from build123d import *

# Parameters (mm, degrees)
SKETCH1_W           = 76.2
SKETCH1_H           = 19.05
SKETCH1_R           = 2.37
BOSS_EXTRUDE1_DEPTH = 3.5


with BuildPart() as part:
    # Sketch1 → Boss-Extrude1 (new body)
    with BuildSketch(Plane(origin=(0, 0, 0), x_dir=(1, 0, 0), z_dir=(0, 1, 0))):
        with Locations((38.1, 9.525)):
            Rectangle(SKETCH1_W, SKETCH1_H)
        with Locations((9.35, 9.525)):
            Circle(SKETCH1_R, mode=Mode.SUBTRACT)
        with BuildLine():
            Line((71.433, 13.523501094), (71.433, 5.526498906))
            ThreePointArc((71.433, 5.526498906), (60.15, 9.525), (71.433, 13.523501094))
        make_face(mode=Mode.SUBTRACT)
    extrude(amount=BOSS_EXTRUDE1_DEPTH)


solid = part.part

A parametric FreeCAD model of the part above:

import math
import FreeCAD as App
import Part
import Sketcher

V = App.Vector
Q = App.Units.Quantity


def add_polygon(sketch, points):
    """Adds a closed chain of lines whose ends are joined by coincident constraints."""
    first, n = sketch.GeometryCount, len(points)
    for a, b in zip(points, points[1:] + points[:1]):
        sketch.addGeometry(Part.LineSegment(App.Vector(*a, 0), App.Vector(*b, 0)), False)
    for i in range(n):
        sketch.addConstraint(Sketcher.Constraint("Coincident", first + i, 2, first + (i + 1) % n, 1))

doc = App.newDocument("Part")
body = doc.addObject("PartDesign::Body", "Body")

sketch1 = body.newObject("Sketcher::SketchObject", "Sketch")
sketch1.AttachmentSupport = (doc.getObject("XZ_Plane"), [""])
sketch1.MapMode = "FlatFace"
add_polygon(sketch1, [(0, -19.1), (0, 0), (76.2, 0), (76.2, -19.1)])
sketch1.addGeometry(Part.Circle(V(9.3, -9.5, 0), V(0, 0, 1), 2.4), False)
sketch1.addGeometry(Part.ArcOfCircle(Part.Circle(V(66.5, -9.5, 0), V(0, 0, 1), 6.3), math.radians(39), math.radians(321)), False)
sketch1.addGeometry(Part.LineSegment(V(71.4, -13.5, 0), V(71.4, -5.5, 0)), False)
sketch1.addConstraint(Sketcher.Constraint("Coincident", 5, 1, 6, 2))
sketch1.addConstraint(Sketcher.Constraint("Coincident", 6, 1, 5, 2))
sketch1.addConstraint(Sketcher.Constraint("Vertical", 0))
sketch1.addConstraint(Sketcher.Constraint("Horizontal", 1))
sketch1.addConstraint(Sketcher.Constraint("Vertical", 2))
sketch1.addConstraint(Sketcher.Constraint("Horizontal", 3))
sketch1.addConstraint(Sketcher.Constraint("Vertical", 6))
sketch1.addConstraint(Sketcher.Constraint("Coincident", 0, 2, -1, 1))
sketch1.addConstraint(Sketcher.Constraint("Horizontal", 4, 3, 5, 3))
sketch1.addConstraint(Sketcher.Constraint("DistanceX", 1, 1, 1, 2, Q("3 in")))
sketch1.addConstraint(Sketcher.Constraint("Radius", 5, Q("0.25 in")))
sketch1.addConstraint(Sketcher.Constraint("DistanceY", 0, 1, 0, 2, Q("0.75 in")))
sketch1.addConstraint(Sketcher.Constraint("Diameter", 4, 4.74))
sketch1.addConstraint(Sketcher.Constraint("DistanceX", 4, 3, 5, 3, Q("2.25 in")))
sketch1.addConstraint(Sketcher.Constraint("DistanceY", 4, 3, -1, 1, Q("0.375 in")))
sketch1.addConstraint(Sketcher.Constraint("DistanceX", -1, 1, 4, 3, 9.35))
sketch1.addConstraint(Sketcher.Constraint("DistanceX", -1, 1, 5, 1, 71.433))
pad1 = body.newObject("PartDesign::Pad", "Pad")
pad1.Profile = sketch1
pad1.Length = 3.5
pad1.Reversed = True

doc.recompute()
